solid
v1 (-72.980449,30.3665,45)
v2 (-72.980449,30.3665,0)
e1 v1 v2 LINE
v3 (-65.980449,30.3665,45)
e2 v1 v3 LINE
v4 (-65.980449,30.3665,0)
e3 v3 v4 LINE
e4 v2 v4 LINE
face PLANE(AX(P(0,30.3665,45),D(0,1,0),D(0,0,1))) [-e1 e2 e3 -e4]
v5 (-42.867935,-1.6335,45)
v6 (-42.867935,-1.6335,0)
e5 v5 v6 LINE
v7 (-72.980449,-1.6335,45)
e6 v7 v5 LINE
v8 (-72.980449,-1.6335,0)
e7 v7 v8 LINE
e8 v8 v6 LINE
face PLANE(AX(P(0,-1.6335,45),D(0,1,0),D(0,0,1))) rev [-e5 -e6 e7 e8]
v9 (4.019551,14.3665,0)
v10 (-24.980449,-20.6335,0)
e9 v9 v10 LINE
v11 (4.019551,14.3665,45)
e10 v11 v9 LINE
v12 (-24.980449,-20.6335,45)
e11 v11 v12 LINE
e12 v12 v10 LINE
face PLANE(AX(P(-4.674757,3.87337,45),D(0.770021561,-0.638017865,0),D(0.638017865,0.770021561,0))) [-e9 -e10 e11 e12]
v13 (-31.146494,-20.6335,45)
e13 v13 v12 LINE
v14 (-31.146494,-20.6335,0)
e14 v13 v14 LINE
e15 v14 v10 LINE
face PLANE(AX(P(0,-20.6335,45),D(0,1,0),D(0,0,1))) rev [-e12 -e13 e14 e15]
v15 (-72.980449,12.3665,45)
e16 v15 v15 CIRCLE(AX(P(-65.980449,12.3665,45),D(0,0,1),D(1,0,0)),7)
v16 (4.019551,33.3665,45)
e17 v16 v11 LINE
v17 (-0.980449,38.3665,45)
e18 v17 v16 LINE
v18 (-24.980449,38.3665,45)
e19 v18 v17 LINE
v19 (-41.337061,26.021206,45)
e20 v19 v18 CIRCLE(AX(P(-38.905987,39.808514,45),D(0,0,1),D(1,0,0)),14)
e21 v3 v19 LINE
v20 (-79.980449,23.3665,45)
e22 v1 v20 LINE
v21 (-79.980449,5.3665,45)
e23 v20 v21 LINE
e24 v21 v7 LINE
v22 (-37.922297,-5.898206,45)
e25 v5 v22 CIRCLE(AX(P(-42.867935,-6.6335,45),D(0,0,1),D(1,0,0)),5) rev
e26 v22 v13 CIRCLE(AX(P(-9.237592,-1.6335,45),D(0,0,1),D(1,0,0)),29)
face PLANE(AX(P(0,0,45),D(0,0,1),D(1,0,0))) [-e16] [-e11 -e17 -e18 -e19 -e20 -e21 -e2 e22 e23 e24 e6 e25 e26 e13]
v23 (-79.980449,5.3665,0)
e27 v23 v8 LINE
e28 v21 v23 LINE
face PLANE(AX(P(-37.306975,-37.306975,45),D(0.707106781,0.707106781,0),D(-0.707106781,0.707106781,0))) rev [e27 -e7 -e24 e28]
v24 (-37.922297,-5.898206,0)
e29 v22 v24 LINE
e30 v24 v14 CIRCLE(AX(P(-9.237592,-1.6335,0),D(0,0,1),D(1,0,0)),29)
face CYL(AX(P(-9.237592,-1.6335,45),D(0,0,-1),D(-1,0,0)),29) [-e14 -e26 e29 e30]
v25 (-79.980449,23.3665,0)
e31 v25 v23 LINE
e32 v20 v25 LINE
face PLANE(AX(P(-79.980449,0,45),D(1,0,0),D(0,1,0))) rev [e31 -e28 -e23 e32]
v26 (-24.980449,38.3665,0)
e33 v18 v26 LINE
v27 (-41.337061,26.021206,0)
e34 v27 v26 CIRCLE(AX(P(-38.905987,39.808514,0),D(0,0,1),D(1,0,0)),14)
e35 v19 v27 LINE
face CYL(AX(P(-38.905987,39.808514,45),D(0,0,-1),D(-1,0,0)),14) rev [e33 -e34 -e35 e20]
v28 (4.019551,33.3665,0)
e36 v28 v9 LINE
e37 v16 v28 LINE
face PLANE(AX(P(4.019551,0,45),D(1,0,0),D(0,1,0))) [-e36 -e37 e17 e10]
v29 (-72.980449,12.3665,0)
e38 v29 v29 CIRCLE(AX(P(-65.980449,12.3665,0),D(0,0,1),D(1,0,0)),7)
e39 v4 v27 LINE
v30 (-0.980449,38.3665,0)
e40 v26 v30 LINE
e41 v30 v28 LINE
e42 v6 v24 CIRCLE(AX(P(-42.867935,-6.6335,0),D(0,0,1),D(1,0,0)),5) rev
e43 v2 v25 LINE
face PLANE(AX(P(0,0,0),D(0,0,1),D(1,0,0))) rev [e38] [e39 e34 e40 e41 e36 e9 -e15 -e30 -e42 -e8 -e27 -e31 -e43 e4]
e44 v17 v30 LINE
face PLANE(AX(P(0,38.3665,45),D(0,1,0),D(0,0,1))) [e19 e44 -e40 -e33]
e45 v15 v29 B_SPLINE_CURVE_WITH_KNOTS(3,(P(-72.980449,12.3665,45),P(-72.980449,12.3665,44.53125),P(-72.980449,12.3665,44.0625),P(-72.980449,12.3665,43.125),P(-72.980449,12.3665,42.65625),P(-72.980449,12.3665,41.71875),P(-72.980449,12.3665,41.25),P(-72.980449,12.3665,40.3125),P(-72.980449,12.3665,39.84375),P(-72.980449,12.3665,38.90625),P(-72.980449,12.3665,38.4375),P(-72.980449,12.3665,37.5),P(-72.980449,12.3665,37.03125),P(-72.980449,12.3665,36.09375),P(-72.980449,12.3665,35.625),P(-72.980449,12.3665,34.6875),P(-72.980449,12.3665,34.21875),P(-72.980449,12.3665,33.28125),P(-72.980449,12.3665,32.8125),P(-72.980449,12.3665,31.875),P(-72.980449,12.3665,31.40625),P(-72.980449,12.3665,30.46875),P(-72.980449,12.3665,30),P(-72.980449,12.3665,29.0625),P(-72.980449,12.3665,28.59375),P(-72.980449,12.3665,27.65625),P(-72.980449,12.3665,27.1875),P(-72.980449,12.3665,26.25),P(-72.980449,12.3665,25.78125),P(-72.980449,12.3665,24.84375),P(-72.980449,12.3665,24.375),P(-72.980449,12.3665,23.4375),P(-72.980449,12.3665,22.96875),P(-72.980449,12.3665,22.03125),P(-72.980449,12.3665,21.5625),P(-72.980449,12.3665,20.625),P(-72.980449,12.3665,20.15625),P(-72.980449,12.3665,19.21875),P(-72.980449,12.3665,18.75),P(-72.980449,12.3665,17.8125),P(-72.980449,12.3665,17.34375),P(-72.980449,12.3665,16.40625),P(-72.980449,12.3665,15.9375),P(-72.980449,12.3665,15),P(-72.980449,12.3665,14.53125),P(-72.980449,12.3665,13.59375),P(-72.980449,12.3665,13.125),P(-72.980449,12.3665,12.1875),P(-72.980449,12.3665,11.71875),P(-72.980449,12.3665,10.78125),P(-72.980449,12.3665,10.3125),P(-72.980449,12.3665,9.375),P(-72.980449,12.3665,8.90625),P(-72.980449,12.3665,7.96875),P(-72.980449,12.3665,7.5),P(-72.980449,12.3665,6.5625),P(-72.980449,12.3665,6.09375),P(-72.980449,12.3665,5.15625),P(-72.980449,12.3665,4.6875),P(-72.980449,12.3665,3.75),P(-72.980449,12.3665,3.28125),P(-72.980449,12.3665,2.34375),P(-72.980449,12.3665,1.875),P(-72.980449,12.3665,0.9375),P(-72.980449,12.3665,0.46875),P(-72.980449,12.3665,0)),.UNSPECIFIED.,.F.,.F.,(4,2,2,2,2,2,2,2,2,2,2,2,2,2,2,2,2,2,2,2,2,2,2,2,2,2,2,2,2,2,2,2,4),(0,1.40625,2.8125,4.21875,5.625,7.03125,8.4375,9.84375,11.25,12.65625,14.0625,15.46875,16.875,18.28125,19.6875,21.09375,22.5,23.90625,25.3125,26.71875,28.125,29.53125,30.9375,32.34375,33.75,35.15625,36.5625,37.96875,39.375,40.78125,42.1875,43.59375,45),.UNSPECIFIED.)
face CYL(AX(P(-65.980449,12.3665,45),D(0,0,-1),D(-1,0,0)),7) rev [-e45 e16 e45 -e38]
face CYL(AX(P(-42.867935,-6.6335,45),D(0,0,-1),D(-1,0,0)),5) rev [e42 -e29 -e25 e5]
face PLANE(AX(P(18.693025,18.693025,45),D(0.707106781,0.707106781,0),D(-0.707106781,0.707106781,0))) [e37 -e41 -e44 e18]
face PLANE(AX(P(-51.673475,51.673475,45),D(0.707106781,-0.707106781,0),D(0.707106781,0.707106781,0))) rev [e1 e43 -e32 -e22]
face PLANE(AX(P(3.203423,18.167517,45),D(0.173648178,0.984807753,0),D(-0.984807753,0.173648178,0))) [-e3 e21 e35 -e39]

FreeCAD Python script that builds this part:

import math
import FreeCAD as App
import Part
import Sketcher
Q = App.Units.Quantity

doc = App.newDocument("Part")
body = doc.addObject("PartDesign::Body", "Body")

# Sketch on XY plane
sketch1 = body.newObject("Sketcher::SketchObject", "Sketch")
sketch1.AttachmentSupport = (doc.getObject("XY_Plane"), [""])
sketch1.MapMode = "FlatFace"
sketch1.addGeometry(Part.ArcOfCircle(Part.Circle(App.Vector(-43, -7, 0), App.Vector(0, 0, 1), 5), math.radians(8), math.radians(90)), False)
sketch1.addGeometry(Part.ArcOfCircle(Part.Circle(App.Vector(-9, -2, 0), App.Vector(0, 0, 1), 29), math.radians(-172), math.radians(-139)), False)
sketch1.addGeometry(Part.LineSegment(App.Vector(-31, -21, 0), App.Vector(-25, -21, 0)), False)
sketch1.addGeometry(Part.LineSegment(App.Vector(-25, -21, 0), App.Vector(4, 14, 0)), False)
sketch1.addGeometry(Part.LineSegment(App.Vector(4, 14, 0), App.Vector(4, 33, 0)), False)
sketch1.addGeometry(Part.LineSegment(App.Vector(4, 33, 0), App.Vector(-1, 38, 0)), False)
sketch1.addGeometry(Part.LineSegment(App.Vector(-1, 38, 0), App.Vector(-25, 38, 0)), False)
sketch1.addGeometry(Part.ArcOfCircle(Part.Circle(App.Vector(-39, 40, 0), App.Vector(0, 0, 1), 14), math.radians(-100), math.radians(-6)), False)
sketch1.addGeometry(Part.LineSegment(App.Vector(-41, 26, 0), App.Vector(-66, 30, 0)), False)
sketch1.addGeometry(Part.LineSegment(App.Vector(-66, 30, 0), App.Vector(-73, 30, 0)), False)
sketch1.addGeometry(Part.LineSegment(App.Vector(-73, 30, 0), App.Vector(-80, 23, 0)), False)
sketch1.addGeometry(Part.LineSegment(App.Vector(-80, 23, 0), App.Vector(-80, 5, 0)), False)
sketch1.addGeometry(Part.LineSegment(App.Vector(-80, 5, 0), App.Vector(-73, -2, 0)), False)
sketch1.addGeometry(Part.LineSegment(App.Vector(-73, -2, 0), App.Vector(-43, -2, 0)), False)
sketch1.addGeometry(Part.Circle(App.Vector(-66, 12, 0), App.Vector(0, 0, 1), 7), False)
sketch1.addConstraint(Sketcher.Constraint("Tangent", 0, 1, 1, 1))
sketch1.addConstraint(Sketcher.Constraint("Coincident", 1, 2, 2, 1))
sketch1.addConstraint(Sketcher.Constraint("Coincident", 2, 2, 3, 1))
sketch1.addConstraint(Sketcher.Constraint("Coincident", 3, 2, 4, 1))
sketch1.addConstraint(Sketcher.Constraint("Coincident", 4, 2, 5, 1))
sketch1.addConstraint(Sketcher.Constraint("Coincident", 5, 2, 6, 1))
sketch1.addConstraint(Sketcher.Constraint("Coincident", 6, 2, 7, 2))
sketch1.addConstraint(Sketcher.Constraint("Tangent", 7, 1, 8, 1))
sketch1.addConstraint(Sketcher.Constraint("Coincident", 8, 2, 9, 1))
sketch1.addConstraint(Sketcher.Constraint("Coincident", 9, 2, 10, 1))
sketch1.addConstraint(Sketcher.Constraint("Coincident", 10, 2, 11, 1))
sketch1.addConstraint(Sketcher.Constraint("Coincident", 11, 2, 12, 1))
sketch1.addConstraint(Sketcher.Constraint("Coincident", 12, 2, 13, 1))
sketch1.addConstraint(Sketcher.Constraint("Tangent", 13, 2, 0, 2))
sketch1.addConstraint(Sketcher.Constraint("Horizontal", 2))
sketch1.addConstraint(Sketcher.Constraint("Vertical", 4))
sketch1.addConstraint(Sketcher.Constraint("Horizontal", 6))
sketch1.addConstraint(Sketcher.Constraint("Horizontal", 9))
sketch1.addConstraint(Sketcher.Constraint("Vertical", 11))
sketch1.addConstraint(Sketcher.Constraint("Horizontal", 13))
sketch1.addConstraint(Sketcher.Constraint("Perpendicular", 5, 10))
sketch1.addConstraint(Sketcher.Constraint("Perpendicular", 10, 12))
sketch1.addConstraint(Sketcher.Constraint("Horizontal", 1, 3, 12, 2))
sketch1.addConstraint(Sketcher.Constraint("Vertical", 2, 2, 6, 2))
sketch1.addConstraint(Sketcher.Constraint("Vertical", 14, 3, 8, 2))
sketch1.addConstraint(Sketcher.Constraint("Vertical", 9, 2, 12, 2))
sketch1.addConstraint(Sketcher.Constraint("Equal", 10, 12))
sketch1.addConstraint(Sketcher.Constraint("Diameter", 14, Q("14 mm")))
sketch1.addConstraint(Sketcher.Constraint("Radius", 0, Q("5 mm")))
sketch1.addConstraint(Sketcher.Constraint("Radius", 1, Q("29 mm")))
sketch1.addConstraint(Sketcher.Constraint("Radius", 7, Q("14 mm")))
sketch1.addConstraint(Sketcher.Constraint("DistanceX", 6, 2, 6, 1, Q("24 mm")))
sketch1.addConstraint(Sketcher.Constraint("DistanceX", 9, 2, 9, 1, Q("7 mm")))
sketch1.addConstraint(Sketcher.Constraint("DistanceY", 4, 1, 4, 2, Q("19 mm")))
sketch1.addConstraint(Sketcher.Constraint("DistanceY", 11, 2, 11, 1, Q("18 mm")))
sketch1.addConstraint(Sketcher.Constraint("Angle", 8, Q("170 deg")))
sketch1.addConstraint(Sketcher.Constraint("DistanceY", 0, 3, 14, 3, Q("19 mm")))
sketch1.addConstraint(Sketcher.Constraint("DistanceY", 1, 2, 0, 3, Q("14 mm")))
sketch1.addConstraint(Sketcher.Constraint("DistanceX", 14, 3, 2, 2, Q("41 mm")))
sketch1.addConstraint(Sketcher.Constraint("DistanceY", 1, 3, 3, 2, Q("16 mm")))
sketch1.addConstraint(Sketcher.Constraint("DistanceX", 2, 2, 3, 2, Q("29 mm")))
sketch1.addConstraint(Sketcher.Constraint("DistanceY", 14, 3, 8, 2, Q("18 mm")))
sketch1.addConstraint(Sketcher.Constraint("DistanceY", 0, 3, -1, 1, Q("6.6335 mm")))
sketch1.addConstraint(Sketcher.Constraint("DistanceX", 2, 1, 2, 2, Q("6.166045 mm")))
sketch1.addConstraint(Sketcher.Constraint("DistanceX", 1, 3, -1, 1, Q("9.237592 mm")))
pad1 = body.newObject("PartDesign::Pad", "Pad")
pad1.Profile = sketch1
pad1.Length = 45

doc.recompute()
